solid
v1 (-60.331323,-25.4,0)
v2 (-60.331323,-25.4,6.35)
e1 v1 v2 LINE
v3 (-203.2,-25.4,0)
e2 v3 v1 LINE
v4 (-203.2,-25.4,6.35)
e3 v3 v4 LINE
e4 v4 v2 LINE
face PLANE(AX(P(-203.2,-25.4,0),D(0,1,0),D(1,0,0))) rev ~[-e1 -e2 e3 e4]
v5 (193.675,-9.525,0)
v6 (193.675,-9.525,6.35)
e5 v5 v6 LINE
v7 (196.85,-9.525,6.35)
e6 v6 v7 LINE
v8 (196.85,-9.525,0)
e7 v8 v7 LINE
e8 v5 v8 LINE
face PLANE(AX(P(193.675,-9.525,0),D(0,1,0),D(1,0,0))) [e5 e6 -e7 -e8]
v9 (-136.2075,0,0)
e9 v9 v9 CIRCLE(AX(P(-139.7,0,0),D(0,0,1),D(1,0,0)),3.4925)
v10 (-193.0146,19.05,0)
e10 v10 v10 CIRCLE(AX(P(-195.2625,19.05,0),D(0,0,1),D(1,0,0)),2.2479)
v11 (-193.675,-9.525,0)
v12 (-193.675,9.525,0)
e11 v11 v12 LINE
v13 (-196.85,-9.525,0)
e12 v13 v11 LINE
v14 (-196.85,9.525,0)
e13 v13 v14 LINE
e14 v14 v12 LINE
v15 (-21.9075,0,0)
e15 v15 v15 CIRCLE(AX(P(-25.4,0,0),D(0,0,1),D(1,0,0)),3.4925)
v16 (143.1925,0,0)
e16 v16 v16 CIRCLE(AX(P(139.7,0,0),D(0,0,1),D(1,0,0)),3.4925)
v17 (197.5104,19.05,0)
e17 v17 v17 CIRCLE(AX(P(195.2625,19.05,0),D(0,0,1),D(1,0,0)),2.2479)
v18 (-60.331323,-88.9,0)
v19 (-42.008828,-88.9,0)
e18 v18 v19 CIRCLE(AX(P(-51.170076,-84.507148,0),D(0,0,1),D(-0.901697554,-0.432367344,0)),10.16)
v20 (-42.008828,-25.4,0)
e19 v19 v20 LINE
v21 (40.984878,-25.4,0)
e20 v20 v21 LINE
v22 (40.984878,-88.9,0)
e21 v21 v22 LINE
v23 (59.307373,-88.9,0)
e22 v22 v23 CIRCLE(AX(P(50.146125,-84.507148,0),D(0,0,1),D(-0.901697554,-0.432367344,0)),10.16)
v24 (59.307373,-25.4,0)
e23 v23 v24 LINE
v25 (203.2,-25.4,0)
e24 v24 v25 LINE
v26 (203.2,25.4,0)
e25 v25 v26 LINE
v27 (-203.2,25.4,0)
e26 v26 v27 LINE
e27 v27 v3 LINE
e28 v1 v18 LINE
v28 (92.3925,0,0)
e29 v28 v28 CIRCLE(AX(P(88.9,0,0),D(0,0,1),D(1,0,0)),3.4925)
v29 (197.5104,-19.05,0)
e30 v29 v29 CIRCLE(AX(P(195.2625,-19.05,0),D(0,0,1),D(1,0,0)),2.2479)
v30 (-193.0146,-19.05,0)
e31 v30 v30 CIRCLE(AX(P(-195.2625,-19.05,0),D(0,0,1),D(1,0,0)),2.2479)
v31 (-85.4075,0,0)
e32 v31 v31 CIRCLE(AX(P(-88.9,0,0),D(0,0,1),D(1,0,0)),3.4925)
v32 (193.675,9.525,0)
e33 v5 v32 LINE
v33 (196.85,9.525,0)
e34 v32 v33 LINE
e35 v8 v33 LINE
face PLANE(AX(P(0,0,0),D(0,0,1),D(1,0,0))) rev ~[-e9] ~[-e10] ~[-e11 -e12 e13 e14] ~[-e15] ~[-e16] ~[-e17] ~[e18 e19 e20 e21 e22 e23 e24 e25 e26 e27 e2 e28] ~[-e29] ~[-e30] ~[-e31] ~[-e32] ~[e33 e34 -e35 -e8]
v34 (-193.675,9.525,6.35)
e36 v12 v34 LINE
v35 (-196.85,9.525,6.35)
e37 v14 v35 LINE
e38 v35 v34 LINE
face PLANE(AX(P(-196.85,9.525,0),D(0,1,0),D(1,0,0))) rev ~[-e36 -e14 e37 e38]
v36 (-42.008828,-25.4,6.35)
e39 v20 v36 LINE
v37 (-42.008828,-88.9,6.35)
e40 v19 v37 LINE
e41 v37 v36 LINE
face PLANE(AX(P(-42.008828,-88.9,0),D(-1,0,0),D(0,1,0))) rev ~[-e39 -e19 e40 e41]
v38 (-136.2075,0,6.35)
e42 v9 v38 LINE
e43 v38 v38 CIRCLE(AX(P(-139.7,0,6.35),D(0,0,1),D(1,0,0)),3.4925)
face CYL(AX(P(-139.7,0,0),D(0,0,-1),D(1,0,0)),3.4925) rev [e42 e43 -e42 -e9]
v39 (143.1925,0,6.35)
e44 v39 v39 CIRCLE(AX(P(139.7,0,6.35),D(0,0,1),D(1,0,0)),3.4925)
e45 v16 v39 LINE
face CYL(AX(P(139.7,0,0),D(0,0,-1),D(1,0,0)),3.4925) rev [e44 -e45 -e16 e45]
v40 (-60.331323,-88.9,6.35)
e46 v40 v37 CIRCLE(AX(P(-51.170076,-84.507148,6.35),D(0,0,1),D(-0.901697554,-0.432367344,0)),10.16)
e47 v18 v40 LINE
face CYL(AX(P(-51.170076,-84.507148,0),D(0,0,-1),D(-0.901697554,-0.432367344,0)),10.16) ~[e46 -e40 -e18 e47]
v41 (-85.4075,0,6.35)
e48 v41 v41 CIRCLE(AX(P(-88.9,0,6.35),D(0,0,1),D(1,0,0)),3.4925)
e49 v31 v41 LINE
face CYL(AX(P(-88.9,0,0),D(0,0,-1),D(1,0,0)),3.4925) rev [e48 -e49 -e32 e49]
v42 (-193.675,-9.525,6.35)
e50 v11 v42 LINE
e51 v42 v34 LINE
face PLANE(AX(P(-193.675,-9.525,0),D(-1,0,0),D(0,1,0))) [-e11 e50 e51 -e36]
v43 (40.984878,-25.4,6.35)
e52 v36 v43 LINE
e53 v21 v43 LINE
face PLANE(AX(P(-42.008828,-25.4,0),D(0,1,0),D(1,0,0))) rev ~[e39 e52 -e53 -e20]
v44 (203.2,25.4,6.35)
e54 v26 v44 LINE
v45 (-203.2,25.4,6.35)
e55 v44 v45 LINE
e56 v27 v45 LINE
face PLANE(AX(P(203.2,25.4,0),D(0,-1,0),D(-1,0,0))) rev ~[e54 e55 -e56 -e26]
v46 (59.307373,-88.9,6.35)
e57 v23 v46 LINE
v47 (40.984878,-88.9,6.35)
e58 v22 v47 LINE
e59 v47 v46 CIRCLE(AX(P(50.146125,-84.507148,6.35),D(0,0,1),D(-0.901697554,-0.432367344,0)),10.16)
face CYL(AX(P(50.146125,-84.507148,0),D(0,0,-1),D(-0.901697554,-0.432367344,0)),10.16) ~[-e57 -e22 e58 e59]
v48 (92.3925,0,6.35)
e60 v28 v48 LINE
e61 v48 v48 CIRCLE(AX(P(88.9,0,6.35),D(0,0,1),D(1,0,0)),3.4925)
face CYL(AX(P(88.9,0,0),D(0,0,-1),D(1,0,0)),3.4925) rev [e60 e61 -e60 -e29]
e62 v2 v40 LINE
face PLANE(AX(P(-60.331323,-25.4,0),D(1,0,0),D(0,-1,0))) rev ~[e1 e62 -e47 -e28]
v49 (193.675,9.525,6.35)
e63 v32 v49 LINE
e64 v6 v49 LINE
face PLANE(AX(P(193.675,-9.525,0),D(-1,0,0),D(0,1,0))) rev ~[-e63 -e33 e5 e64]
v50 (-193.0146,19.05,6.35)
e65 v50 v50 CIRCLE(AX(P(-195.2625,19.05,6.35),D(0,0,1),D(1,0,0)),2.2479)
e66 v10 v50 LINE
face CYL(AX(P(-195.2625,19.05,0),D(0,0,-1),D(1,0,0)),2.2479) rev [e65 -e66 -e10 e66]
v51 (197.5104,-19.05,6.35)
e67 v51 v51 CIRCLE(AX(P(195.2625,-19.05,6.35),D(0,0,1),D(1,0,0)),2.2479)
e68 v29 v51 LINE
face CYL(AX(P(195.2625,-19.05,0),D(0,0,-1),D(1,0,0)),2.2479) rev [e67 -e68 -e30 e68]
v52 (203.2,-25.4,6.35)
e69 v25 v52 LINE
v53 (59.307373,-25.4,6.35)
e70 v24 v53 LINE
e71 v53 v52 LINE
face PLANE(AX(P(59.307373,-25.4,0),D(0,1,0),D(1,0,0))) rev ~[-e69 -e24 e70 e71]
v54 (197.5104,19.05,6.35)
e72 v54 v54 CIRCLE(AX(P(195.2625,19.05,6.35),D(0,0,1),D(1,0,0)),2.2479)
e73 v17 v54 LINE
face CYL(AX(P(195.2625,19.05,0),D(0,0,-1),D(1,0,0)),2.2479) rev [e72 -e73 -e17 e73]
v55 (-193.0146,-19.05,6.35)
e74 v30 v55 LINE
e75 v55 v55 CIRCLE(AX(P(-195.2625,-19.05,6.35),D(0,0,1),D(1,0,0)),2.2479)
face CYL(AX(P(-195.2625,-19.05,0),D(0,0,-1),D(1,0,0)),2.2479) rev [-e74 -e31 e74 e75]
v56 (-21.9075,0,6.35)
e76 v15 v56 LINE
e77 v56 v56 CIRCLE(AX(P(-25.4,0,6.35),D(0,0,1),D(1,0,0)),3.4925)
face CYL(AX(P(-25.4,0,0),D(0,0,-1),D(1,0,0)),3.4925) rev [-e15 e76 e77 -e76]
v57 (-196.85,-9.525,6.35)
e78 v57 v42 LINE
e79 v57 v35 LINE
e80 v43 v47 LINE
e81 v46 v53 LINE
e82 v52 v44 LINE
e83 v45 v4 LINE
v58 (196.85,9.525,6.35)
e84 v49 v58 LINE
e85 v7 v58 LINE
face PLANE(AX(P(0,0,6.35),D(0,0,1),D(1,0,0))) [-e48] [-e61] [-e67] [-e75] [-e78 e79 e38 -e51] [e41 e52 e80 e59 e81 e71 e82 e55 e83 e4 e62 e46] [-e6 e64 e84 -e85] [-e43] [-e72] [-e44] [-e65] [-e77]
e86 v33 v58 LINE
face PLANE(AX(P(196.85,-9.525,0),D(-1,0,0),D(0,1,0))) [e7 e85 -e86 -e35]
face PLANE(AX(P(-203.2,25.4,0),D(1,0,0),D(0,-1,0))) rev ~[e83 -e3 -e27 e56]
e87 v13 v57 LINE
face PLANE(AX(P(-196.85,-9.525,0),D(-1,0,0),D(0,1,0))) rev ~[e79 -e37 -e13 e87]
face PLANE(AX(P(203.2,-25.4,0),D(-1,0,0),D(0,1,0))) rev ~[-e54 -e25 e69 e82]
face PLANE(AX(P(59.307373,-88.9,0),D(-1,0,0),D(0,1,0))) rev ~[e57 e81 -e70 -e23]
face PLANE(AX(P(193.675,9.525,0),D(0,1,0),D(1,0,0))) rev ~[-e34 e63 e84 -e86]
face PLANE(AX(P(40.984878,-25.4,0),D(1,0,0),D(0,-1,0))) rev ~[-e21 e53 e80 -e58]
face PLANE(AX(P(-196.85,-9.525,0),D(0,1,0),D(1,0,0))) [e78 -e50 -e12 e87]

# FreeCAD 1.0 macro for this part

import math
import FreeCAD as App
import Part
import Sketcher

V = App.Vector
Q = App.Units.Quantity

doc = App.newDocument("Part")
body = doc.addObject("PartDesign::Body", "Body")

# Sketch on XY plane
sketch1 = body.newObject("Sketcher::SketchObject", "Sketch")
sketch1.AttachmentSupport = (doc.getObject("XY_Plane"), [""])
sketch1.MapMode = "FlatFace"
sketch1.addGeometry(Part.LineSegment(V(203.2, -25.4, 0), V(203.2, 25.4, 0)), False)
sketch1.addGeometry(Part.LineSegment(V(203.2, 25.4, 0), V(-203.2, 25.4, 0)), False)
sketch1.addGeometry(Part.LineSegment(V(-203.2, 25.4, 0), V(-203.2, -25.4, 0)), False)
sketch1.addGeometry(Part.LineSegment(V(-203.2, -25.4, 0), V(-60.3, -25.4, 0)), False)
sketch1.addGeometry(Part.LineSegment(V(-60.3, -25.4, 0), V(-60.3, -88.9, 0)), False)
sketch1.addGeometry(Part.ArcOfCircle(Part.Circle(V(-51.2, -84.5, 0), V(0, 0, 1), 10.2), math.radians(-154), math.radians(-26)), False)
sketch1.addGeometry(Part.LineSegment(V(-42, -88.9, 0), V(-42, -25.4, 0)), False)
sketch1.addGeometry(Part.LineSegment(V(-42, -25.4, 0), V(41, -25.4, 0)), False)
sketch1.addGeometry(Part.LineSegment(V(41, -25.4, 0), V(41, -88.9, 0)), False)
sketch1.addGeometry(Part.ArcOfCircle(Part.Circle(V(50.1, -84.5, 0), V(0, 0, 1), 10.2), math.radians(-154), math.radians(-26)), False)
sketch1.addGeometry(Part.LineSegment(V(59.3, -88.9, 0), V(59.3, -25.4, 0)), False)
sketch1.addGeometry(Part.LineSegment(V(59.3, -25.4, 0), V(203.2, -25.4, 0)), False)
sketch1.addGeometry(Part.Circle(V(-195.3, -19.1, 0), V(0, 0, 1), 2.2), False)
sketch1.addGeometry(Part.LineSegment(V(-193.7, -9.5, 0), V(-196.8, -9.5, 0)), False)
sketch1.addGeometry(Part.LineSegment(V(-196.8, -9.5, 0), V(-196.8, 9.5, 0)), False)
sketch1.addGeometry(Part.LineSegment(V(-196.8, 9.5, 0), V(-193.7, 9.5, 0)), False)
sketch1.addGeometry(Part.LineSegment(V(-193.7, 9.5, 0), V(-193.7, -9.5, 0)), False)
sketch1.addGeometry(Part.Circle(V(195.3, -19.1, 0), V(0, 0, 1), 2.2), False)
sketch1.addGeometry(Part.LineSegment(V(196.8, -9.5, 0), V(193.7, -9.5, 0)), False)
sketch1.addGeometry(Part.LineSegment(V(193.7, -9.5, 0), V(193.7, 9.5, 0)), False)
sketch1.addGeometry(Part.LineSegment(V(193.7, 9.5, 0), V(196.8, 9.5, 0)), False)
sketch1.addGeometry(Part.LineSegment(V(196.8, 9.5, 0), V(196.8, -9.5, 0)), False)
sketch1.addGeometry(Part.Circle(V(-139.7, 0, 0), V(0, 0, 1), 3.5), False)
sketch1.addGeometry(Part.Circle(V(-88.9, 0, 0), V(0, 0, 1), 3.5), False)
sketch1.addGeometry(Part.Circle(V(-25.4, 0, 0), V(0, 0, 1), 3.5), False)
sketch1.addGeometry(Part.Circle(V(-195.3, 19.1, 0), V(0, 0, 1), 2.2), False)
sketch1.addGeometry(Part.Circle(V(88.9, 0, 0), V(0, 0, 1), 3.5), False)
sketch1.addGeometry(Part.Circle(V(139.7, 0, 0), V(0, 0, 1), 3.5), False)
sketch1.addGeometry(Part.Circle(V(195.3, 19.1, 0), V(0, 0, 1), 2.2), False)
sketch1.addConstraint(Sketcher.Constraint("Coincident", 0, 2, 1, 1))
sketch1.addConstraint(Sketcher.Constraint("Coincident", 1, 2, 2, 1))
sketch1.addConstraint(Sketcher.Constraint("Coincident", 2, 2, 3, 1))
sketch1.addConstraint(Sketcher.Constraint("Coincident", 3, 2, 4, 1))
sketch1.addConstraint(Sketcher.Constraint("Coincident", 4, 2, 5, 1))
sketch1.addConstraint(Sketcher.Constraint("Coincident", 5, 2, 6, 1))
sketch1.addConstraint(Sketcher.Constraint("Coincident", 6, 2, 7, 1))
sketch1.addConstraint(Sketcher.Constraint("Coincident", 7, 2, 8, 1))
sketch1.addConstraint(Sketcher.Constraint("Coincident", 8, 2, 9, 1))
sketch1.addConstraint(Sketcher.Constraint("Coincident", 9, 2, 10, 1))
sketch1.addConstraint(Sketcher.Constraint("Coincident", 10, 2, 11, 1))
sketch1.addConstraint(Sketcher.Constraint("Coincident", 11, 2, 0, 1))
sketch1.addConstraint(Sketcher.Constraint("Coincident", 13, 2, 14, 1))
sketch1.addConstraint(Sketcher.Constraint("Coincident", 14, 2, 15, 1))
sketch1.addConstraint(Sketcher.Constraint("Coincident", 15, 2, 16, 1))
sketch1.addConstraint(Sketcher.Constraint("Coincident", 16, 2, 13, 1))
sketch1.addConstraint(Sketcher.Constraint("Coincident", 18, 2, 19, 1))
sketch1.addConstraint(Sketcher.Constraint("Coincident", 19, 2, 20, 1))
sketch1.addConstraint(Sketcher.Constraint("Coincident", 20, 2, 21, 1))
sketch1.addConstraint(Sketcher.Constraint("Coincident", 21, 2, 18, 1))
sketch1.addConstraint(Sketcher.Constraint("Vertical", 0))
sketch1.addConstraint(Sketcher.Constraint("Horizontal", 1))
sketch1.addConstraint(Sketcher.Constraint("Vertical", 2))
sketch1.addConstraint(Sketcher.Constraint("Horizontal", 3))
sketch1.addConstraint(Sketcher.Constraint("Vertical", 4))
sketch1.addConstraint(Sketcher.Constraint("Vertical", 6))
sketch1.addConstraint(Sketcher.Constraint("Horizontal", 7))
sketch1.addConstraint(Sketcher.Constraint("Vertical", 8))
sketch1.addConstraint(Sketcher.Constraint("Vertical", 10))
sketch1.addConstraint(Sketcher.Constraint("Horizontal", 11))
sketch1.addConstraint(Sketcher.Constraint("Horizontal", 13))
sketch1.addConstraint(Sketcher.Constraint("Vertical", 14))
sketch1.addConstraint(Sketcher.Constraint("Horizontal", 15))
sketch1.addConstraint(Sketcher.Constraint("Vertical", 16))
sketch1.addConstraint(Sketcher.Constraint("Horizontal", 18))
sketch1.addConstraint(Sketcher.Constraint("Vertical", 19))
sketch1.addConstraint(Sketcher.Constraint("Horizontal", 20))
sketch1.addConstraint(Sketcher.Constraint("Vertical", 21))
sketch1.addConstraint(Sketcher.Constraint("Equal", 5, 9))
sketch1.addConstraint(Sketcher.Constraint("Equal", 12, 17))
sketch1.addConstraint(Sketcher.Constraint("Equal", 22, 23))
sketch1.addConstraint(Sketcher.Constraint("Equal", 23, 24))
sketch1.addConstraint(Sketcher.Constraint("Equal", 17, 25))
sketch1.addConstraint(Sketcher.Constraint("Equal", 24, 26))
sketch1.addConstraint(Sketcher.Constraint("Equal", 26, 27))
sketch1.addConstraint(Sketcher.Constraint("Equal", 25, 28))
sketch1.addConstraint(Sketcher.Constraint("Symmetric", 17, 3, 25, 3, -1, 1))
sketch1.addConstraint(Sketcher.Constraint("Symmetric", 23, 3, 26, 3, -1, 1))
sketch1.addConstraint(Sketcher.Constraint("Symmetric", 22, 3, 27, 3, -1, 1))
sketch1.addConstraint(Sketcher.Constraint("Symmetric", 12, 3, 28, 3, -1, 1))
sketch1.addConstraint(Sketcher.Constraint("Symmetric", 0, 2, 2, 2, -1, 1))
sketch1.addConstraint(Sketcher.Constraint("Symmetric", 15, 2, 18, 2, -1, 1))
sketch1.addConstraint(Sketcher.Constraint("Symmetric", 13, 2, 20, 2, -1, 1))
sketch1.addConstraint(Sketcher.Constraint("Symmetric", 12, 3, 17, 3, -2))
sketch1.addConstraint(Sketcher.Constraint("PointOnObject", 22, 3, -1))
sketch1.addConstraint(Sketcher.Constraint("PointOnObject", 23, 3, -1))
sketch1.addConstraint(Sketcher.Constraint("PointOnObject", 24, 3, -1))
sketch1.addConstraint(Sketcher.Constraint("Horizontal", 5, 3, 9, 3))
sketch1.addConstraint(Sketcher.Constraint("Horizontal", 4, 2, 5, 2))
sketch1.addConstraint(Sketcher.Constraint("Horizontal", 3, 2, 6, 2))
sketch1.addConstraint(Sketcher.Constraint("Horizontal", 5, 2, 8, 2))
sketch1.addConstraint(Sketcher.Constraint("Horizontal", 8, 2, 9, 2))
sketch1.addConstraint(Sketcher.Constraint("Horizontal", 7, 2, 10, 2))
sketch1.addConstraint(Sketcher.Constraint("Horizontal", 16, 2, 18, 2))
sketch1.addConstraint(Sketcher.Constraint("Radius", 5, Q("0.4 in")))
sketch1.addConstraint(Sketcher.Constraint("DistanceX", 1, 2, 1, 1, Q("16 in")))
sketch1.addConstraint(Sketcher.Constraint("DistanceY", 0, 1, 0, 2, Q("2 in")))
sketch1.addConstraint(Sketcher.Constraint("Diameter", 12, Q("0.177 in")))
sketch1.addConstraint(Sketcher.Constraint("Diameter", 22, Q("0.275 in")))
sketch1.addConstraint(Sketcher.Constraint("DistanceY", 4, 2, 4, 1, Q("2.5 in")))
sketch1.addConstraint(Sketcher.Constraint("DistanceX", 24, 3, -1, 1, Q("1 in")))
sketch1.addConstraint(Sketcher.Constraint("DistanceX", 22, 3, 23, 3, Q("2 in")))
sketch1.addConstraint(Sketcher.Constraint("DistanceX", 23, 3, 26, 3, Q("7 in")))
sketch1.addConstraint(Sketcher.Constraint("DistanceY", 14, 1, 14, 2, Q("0.75 in")))
sketch1.addConstraint(Sketcher.Constraint("DistanceY", 12, 3, 25, 3, Q("1.5 in")))
sketch1.addConstraint(Sketcher.Constraint("DistanceX", 13, 2, 13, 1, Q("0.125 in")))
sketch1.addConstraint(Sketcher.Constraint("DistanceX", 13, 2, -1, 1, Q("7.75 in")))
sketch1.addConstraint(Sketcher.Constraint("DistanceX", 12, 3, -1, 1, Q("7.6875 in")))
sketch1.addConstraint(Sketcher.Constraint("DistanceX", 5, 3, 9, 3, 101.316201))
sketch1.addConstraint(Sketcher.Constraint("DistanceX", 3, 1, 3, 2, 142.868677))
sketch1.addConstraint(Sketcher.Constraint("DistanceX", 7, 1, 7, 2, 82.993706))
pad1 = body.newObject("PartDesign::Pad", "Pad")
pad1.Profile = sketch1
pad1.Length = Q("0.25 in")

doc.recompute()
